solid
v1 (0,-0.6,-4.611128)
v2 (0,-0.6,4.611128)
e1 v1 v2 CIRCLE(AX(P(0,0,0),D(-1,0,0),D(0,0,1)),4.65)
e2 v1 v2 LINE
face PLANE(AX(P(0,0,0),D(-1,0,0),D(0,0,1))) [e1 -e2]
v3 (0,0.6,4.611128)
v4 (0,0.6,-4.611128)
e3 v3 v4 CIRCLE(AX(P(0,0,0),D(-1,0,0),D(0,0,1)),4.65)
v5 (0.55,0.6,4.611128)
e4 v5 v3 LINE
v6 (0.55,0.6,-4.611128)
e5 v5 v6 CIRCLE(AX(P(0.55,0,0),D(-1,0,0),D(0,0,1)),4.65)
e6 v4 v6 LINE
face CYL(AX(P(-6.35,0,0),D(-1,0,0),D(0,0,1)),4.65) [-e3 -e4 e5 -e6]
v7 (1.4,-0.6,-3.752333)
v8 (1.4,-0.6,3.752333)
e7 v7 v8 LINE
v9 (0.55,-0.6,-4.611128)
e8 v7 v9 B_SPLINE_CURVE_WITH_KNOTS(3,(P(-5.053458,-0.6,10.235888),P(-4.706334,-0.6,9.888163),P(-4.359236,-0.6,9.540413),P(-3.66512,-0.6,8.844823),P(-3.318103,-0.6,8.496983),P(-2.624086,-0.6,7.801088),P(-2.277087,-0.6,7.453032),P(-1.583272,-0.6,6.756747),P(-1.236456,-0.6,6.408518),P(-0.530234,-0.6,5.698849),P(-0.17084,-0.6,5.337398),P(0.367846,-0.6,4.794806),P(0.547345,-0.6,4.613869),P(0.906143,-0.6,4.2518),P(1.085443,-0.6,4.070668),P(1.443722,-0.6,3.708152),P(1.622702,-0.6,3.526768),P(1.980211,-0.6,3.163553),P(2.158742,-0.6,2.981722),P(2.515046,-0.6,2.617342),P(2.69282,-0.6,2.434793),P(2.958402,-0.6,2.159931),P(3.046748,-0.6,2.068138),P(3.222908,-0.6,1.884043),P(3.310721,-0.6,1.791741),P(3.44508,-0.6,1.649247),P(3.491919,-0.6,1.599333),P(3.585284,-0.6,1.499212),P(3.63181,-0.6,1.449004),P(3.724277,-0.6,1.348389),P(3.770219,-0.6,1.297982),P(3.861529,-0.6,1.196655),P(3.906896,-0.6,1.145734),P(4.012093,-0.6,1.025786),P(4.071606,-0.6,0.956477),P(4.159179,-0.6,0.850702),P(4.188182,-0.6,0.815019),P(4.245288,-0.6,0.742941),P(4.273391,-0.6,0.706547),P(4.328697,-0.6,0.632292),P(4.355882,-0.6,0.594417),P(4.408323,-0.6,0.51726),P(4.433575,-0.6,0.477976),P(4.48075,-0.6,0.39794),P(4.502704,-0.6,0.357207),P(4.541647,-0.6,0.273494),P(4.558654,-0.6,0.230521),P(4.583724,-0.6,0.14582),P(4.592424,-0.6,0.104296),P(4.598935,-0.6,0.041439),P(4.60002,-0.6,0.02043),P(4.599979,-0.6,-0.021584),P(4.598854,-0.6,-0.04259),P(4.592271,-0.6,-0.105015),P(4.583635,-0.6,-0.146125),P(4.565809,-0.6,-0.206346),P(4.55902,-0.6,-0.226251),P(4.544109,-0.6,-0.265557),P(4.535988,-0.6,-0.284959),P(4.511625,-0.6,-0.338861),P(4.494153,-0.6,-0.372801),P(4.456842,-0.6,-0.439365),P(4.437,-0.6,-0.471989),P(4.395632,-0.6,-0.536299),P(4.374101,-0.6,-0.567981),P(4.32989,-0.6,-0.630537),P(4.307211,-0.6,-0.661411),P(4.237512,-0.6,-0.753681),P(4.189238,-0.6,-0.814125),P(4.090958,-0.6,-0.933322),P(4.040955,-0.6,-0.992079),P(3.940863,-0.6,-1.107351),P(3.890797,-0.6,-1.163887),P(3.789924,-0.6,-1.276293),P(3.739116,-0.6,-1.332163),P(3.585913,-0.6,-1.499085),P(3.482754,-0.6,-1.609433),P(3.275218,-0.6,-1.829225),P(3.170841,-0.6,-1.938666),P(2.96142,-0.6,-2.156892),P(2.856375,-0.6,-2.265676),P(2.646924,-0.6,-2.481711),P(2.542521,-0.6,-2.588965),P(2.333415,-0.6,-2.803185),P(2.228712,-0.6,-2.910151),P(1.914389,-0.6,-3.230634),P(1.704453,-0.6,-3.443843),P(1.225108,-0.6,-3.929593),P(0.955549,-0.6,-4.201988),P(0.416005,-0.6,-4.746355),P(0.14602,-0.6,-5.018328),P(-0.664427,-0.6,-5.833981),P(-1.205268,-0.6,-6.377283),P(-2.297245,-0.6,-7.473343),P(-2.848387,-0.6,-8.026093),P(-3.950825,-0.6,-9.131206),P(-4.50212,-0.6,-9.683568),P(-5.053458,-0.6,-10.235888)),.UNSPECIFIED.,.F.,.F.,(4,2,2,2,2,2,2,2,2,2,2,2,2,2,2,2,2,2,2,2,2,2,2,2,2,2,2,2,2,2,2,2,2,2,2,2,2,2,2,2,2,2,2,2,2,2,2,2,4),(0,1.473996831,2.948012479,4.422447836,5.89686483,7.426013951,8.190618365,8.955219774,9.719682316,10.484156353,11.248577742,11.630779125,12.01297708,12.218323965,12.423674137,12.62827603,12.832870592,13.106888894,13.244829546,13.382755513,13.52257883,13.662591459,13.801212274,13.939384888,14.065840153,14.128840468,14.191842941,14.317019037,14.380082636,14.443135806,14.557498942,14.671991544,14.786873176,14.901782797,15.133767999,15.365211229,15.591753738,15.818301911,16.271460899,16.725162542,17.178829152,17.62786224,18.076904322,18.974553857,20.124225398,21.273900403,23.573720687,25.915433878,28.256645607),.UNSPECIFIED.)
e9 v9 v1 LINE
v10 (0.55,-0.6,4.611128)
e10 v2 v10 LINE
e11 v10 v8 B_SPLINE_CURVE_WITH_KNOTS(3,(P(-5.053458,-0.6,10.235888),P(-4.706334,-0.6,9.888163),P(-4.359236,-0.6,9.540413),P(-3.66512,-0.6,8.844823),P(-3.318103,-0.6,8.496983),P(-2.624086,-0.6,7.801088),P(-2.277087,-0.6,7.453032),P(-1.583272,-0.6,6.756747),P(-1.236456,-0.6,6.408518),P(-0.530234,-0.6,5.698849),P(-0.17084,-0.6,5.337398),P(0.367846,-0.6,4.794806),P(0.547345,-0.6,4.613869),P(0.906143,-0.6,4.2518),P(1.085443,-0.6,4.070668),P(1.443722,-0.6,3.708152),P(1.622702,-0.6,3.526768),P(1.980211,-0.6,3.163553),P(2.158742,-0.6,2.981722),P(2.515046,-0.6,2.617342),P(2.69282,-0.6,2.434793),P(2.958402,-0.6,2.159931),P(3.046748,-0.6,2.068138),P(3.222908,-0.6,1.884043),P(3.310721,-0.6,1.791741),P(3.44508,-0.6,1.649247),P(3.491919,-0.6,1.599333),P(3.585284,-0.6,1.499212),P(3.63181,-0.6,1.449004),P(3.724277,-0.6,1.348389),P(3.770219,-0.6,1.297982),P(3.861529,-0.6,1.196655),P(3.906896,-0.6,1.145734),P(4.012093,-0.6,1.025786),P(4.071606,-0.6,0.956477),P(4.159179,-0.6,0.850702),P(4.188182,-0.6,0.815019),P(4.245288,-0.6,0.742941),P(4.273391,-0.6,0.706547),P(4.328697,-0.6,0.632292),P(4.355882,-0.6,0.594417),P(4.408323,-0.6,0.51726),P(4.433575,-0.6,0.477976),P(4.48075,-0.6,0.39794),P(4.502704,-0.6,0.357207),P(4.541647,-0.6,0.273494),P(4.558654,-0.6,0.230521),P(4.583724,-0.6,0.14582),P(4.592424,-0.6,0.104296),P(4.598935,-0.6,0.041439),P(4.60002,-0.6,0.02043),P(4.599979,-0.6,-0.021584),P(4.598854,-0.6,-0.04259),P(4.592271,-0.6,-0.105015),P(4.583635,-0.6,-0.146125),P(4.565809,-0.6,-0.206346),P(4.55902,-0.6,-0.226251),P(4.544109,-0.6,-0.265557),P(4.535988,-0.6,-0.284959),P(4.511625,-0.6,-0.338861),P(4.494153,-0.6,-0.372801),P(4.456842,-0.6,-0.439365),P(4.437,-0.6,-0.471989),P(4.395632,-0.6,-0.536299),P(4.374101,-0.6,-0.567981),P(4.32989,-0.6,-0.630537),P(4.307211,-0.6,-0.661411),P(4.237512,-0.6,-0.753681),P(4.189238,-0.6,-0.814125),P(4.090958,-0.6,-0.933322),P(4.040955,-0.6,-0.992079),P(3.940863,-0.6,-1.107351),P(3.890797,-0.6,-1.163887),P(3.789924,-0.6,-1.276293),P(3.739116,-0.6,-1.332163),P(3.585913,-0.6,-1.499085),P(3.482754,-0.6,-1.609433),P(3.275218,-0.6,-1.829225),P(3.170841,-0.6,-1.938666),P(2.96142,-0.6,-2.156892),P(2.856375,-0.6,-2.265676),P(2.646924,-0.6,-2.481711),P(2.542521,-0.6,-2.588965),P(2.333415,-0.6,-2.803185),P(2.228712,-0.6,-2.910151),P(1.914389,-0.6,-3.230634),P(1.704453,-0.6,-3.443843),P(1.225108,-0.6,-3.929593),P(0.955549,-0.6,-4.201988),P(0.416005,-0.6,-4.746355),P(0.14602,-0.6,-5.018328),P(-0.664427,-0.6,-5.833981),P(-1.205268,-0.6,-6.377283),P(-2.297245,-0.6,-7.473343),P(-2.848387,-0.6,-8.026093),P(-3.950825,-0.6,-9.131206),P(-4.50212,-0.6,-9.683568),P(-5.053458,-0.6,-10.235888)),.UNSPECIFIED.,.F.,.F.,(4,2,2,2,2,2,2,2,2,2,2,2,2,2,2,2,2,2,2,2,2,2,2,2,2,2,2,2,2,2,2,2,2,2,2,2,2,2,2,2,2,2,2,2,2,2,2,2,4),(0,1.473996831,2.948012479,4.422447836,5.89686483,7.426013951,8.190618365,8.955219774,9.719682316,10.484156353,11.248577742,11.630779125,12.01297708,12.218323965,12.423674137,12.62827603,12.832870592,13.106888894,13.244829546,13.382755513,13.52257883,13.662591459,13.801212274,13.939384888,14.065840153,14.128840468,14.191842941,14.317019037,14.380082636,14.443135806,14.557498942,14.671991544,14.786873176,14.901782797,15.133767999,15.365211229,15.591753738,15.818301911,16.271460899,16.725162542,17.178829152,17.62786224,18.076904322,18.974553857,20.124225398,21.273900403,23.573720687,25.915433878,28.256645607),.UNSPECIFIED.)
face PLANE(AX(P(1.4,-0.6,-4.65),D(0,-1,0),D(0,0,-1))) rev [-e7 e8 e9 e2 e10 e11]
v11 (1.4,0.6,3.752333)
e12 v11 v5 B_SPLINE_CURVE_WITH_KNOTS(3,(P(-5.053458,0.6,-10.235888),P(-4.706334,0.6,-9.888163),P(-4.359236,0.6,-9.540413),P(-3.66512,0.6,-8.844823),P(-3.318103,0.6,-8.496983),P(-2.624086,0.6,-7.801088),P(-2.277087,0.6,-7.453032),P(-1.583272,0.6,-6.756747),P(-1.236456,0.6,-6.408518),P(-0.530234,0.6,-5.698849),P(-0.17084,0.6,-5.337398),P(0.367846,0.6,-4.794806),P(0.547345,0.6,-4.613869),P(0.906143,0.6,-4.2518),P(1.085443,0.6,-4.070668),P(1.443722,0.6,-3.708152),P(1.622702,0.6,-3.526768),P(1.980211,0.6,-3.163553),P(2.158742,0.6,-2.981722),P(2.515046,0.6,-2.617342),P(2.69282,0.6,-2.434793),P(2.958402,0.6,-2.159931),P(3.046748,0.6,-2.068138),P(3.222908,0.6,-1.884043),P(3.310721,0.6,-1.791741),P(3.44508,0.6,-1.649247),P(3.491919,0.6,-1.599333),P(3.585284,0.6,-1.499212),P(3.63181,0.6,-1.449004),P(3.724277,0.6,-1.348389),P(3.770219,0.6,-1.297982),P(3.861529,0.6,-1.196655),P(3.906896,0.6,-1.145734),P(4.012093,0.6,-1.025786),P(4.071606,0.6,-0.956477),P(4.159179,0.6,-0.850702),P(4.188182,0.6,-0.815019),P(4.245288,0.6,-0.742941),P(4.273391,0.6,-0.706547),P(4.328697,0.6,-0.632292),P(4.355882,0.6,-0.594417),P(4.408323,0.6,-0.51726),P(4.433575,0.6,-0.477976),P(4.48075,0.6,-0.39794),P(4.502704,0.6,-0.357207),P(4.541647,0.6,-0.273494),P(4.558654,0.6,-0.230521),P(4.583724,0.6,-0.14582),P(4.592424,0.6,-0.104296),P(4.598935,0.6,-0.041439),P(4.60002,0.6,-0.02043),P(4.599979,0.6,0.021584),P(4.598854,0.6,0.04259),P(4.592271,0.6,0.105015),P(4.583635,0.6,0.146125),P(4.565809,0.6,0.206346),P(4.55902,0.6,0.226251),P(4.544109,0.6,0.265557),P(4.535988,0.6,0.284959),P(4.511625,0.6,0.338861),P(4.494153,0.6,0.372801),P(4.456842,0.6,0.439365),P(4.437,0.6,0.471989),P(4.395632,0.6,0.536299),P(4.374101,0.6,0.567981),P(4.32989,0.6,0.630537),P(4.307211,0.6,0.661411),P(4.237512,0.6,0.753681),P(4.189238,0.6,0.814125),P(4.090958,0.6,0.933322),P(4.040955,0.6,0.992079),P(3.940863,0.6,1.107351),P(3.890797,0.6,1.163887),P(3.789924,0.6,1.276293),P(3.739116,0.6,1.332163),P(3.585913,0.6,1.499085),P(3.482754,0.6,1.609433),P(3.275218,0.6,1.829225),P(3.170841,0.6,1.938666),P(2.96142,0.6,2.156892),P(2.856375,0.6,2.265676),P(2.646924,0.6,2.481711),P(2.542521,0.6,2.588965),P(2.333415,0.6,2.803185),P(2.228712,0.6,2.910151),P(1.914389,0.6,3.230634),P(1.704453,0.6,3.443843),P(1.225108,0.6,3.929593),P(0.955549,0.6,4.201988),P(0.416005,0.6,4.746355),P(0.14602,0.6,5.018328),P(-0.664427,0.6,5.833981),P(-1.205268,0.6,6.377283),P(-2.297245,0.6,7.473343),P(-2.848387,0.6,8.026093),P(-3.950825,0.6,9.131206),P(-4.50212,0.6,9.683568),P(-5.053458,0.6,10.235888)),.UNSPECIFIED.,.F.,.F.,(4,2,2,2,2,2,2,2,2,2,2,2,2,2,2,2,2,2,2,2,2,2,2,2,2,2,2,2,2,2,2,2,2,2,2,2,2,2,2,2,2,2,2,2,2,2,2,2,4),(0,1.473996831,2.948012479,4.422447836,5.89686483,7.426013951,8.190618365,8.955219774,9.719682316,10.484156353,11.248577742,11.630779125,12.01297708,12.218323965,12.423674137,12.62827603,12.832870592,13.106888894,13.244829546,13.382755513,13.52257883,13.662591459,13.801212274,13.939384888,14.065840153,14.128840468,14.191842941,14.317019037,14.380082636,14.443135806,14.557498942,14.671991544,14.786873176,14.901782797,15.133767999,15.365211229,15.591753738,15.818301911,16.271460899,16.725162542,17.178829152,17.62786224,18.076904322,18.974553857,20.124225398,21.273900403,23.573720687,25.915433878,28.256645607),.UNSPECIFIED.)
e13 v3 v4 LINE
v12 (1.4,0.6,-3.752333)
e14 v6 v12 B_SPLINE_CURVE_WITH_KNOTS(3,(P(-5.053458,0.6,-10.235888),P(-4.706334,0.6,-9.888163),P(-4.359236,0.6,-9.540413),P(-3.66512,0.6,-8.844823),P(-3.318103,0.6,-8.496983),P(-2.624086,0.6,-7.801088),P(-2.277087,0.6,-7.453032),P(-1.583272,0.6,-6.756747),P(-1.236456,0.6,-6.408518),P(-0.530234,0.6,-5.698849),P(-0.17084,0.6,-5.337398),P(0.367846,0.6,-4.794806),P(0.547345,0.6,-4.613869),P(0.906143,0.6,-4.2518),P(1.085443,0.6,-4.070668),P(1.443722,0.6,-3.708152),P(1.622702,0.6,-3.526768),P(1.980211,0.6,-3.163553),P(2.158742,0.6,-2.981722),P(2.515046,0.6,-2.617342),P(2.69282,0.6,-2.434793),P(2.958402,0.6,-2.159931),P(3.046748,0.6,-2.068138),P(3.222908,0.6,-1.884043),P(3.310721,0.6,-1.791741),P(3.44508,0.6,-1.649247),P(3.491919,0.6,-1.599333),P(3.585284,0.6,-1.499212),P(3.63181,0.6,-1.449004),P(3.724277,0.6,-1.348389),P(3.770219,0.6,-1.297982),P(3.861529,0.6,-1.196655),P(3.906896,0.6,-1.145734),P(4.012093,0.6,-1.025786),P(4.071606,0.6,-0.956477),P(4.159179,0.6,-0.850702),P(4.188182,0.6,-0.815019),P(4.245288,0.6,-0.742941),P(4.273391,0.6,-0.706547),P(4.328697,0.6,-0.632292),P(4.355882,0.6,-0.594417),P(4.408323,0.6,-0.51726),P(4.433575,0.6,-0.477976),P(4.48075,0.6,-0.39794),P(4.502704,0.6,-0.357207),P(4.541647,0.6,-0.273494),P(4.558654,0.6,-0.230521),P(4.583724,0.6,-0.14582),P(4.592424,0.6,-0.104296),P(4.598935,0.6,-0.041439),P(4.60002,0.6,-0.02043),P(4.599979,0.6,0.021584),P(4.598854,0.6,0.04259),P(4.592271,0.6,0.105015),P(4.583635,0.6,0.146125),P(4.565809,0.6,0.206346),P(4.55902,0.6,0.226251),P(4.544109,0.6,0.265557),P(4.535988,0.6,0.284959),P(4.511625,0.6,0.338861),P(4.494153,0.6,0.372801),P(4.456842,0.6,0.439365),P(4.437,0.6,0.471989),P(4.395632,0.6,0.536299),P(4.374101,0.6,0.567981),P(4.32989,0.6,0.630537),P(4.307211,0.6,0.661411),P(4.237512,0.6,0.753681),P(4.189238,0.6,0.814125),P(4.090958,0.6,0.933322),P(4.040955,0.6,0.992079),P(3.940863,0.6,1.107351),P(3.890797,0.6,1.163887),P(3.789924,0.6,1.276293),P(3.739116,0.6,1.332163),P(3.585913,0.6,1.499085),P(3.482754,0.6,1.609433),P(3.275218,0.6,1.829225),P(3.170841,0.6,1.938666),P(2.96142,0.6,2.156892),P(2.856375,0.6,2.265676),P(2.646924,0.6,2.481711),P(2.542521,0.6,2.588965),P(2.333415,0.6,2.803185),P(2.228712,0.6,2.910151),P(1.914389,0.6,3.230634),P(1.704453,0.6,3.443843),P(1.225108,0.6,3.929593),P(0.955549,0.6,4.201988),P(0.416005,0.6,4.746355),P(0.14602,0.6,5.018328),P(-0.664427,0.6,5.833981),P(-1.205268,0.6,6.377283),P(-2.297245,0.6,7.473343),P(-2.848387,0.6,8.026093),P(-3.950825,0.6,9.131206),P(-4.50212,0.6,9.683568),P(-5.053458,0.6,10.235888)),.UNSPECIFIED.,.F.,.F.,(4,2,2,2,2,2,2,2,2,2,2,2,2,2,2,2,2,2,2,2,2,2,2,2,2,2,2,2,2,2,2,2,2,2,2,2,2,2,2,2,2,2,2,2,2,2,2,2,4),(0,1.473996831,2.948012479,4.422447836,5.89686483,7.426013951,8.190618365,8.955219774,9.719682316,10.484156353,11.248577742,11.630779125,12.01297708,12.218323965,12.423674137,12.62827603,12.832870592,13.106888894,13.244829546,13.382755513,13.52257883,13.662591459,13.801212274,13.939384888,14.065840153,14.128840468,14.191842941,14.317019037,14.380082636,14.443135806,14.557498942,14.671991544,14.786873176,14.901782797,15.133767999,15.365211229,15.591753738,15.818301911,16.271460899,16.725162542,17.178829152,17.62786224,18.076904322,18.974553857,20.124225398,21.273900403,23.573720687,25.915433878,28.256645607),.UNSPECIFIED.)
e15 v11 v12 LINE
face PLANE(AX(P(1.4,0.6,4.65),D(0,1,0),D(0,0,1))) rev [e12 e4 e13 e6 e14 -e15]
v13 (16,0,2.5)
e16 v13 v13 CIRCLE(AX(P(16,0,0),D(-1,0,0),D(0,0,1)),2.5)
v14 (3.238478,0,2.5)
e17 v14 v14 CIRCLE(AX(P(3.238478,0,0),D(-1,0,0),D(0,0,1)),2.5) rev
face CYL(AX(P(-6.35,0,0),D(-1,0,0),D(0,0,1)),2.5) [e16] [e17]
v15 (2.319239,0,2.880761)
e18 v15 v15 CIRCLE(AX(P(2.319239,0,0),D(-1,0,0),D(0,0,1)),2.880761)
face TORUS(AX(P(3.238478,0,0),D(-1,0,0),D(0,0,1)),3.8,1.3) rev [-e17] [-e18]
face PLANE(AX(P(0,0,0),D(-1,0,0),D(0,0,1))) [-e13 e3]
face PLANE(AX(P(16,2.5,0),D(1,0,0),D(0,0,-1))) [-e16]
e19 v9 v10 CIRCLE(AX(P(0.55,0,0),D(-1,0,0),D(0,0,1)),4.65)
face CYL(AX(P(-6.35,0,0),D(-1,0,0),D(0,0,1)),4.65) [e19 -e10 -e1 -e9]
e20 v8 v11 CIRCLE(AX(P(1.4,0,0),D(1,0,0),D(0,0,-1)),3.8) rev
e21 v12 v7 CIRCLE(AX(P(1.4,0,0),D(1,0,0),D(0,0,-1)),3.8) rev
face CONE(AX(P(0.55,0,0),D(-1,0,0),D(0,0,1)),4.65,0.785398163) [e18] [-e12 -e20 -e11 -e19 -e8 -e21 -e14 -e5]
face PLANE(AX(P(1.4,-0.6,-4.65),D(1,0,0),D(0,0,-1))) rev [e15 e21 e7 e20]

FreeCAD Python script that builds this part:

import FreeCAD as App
import Part
import Sketcher
from FreeCAD import Vector
Q = App.Units.Quantity


def edges_at(feature, points):
    """Names of the edges that pass closest to the given points."""
    edges = feature.Shape.Edges
    near = lambda p: min(range(len(edges)), key=lambda i: edges[i].distToShape(Part.Vertex(*p))[0])
    return sorted({f"Edge{near(p) + 1}" for p in points})


def add_polygon(sketch, points):
    """Adds a closed chain of lines whose ends are joined by coincident constraints."""
    first, n = sketch.GeometryCount, len(points)
    for a, b in zip(points, points[1:] + points[:1]):
        sketch.addGeometry(Part.LineSegment(App.Vector(*a, 0), App.Vector(*b, 0)), False)
    for i in range(n):
        sketch.addConstraint(Sketcher.Constraint("Coincident", first + i, 2, first + (i + 1) % n, 1))

doc = App.newDocument("Part")
body = doc.addObject("PartDesign::Body", "Body")

# Sketch on XY plane
sketch1 = body.newObject("Sketcher::SketchObject", "Sketch")
sketch1.AttachmentSupport = (doc.getObject("XY_Plane"), [""])
sketch1.MapMode = "FlatFace"
add_polygon(sketch1, [(0, 4.7), (0, 0), (16, 0), (16, 2.5), (2.7, 2.5), (0.6, 4.7)])  # lines 0-5
sketch1.addConstraint([
    Sketcher.Constraint("Vertical", 0),
    Sketcher.Constraint("Horizontal", 1),
    Sketcher.Constraint("Vertical", 2),
    Sketcher.Constraint("Horizontal", 3),
    Sketcher.Constraint("Horizontal", 5),
    Sketcher.Constraint("Coincident", 0, 2, -1, 1),
    Sketcher.Constraint("DistanceX", 1, 1, 1, 2, Q("16 mm")),
    Sketcher.Constraint("Angle", 4, Q("135 deg")),
    Sketcher.Constraint("DistanceX", 3, 2, 3, 1, Q("13.3 mm")),
    Sketcher.Constraint("DistanceY", 2, 1, 2, 2, Q("2.5 mm")),
    Sketcher.Constraint("DistanceX", 5, 2, 5, 1, Q("0.55 mm")),
])
revolution = body.newObject("PartDesign::Revolution", "Revolution")
revolution.Profile = sketch1
revolution.ReferenceAxis = (sketch1, ["H_Axis"])
revolution.Angle = 360
doc.recompute()

fillet = body.newObject("PartDesign::Fillet", "Fillet")
fillet.Base = (revolution, edges_at(revolution, [(2.7, -2.5, 0)]))
fillet.Radius = 1.3

# Sketch on YZ plane
sketch2 = body.newObject("Sketcher::SketchObject", "Sketch001")
sketch2.AttachmentSupport = (doc.getObject("YZ_Plane"), [""])
sketch2.MapMode = "FlatFace"
add_polygon(sketch2, [(0.6, -4.7), (-0.6, -4.7), (-0.6, 4.7), (0.6, 4.7)])  # lines 0-3
sketch2.addConstraint([
    Sketcher.Constraint("Horizontal", 0),
    Sketcher.Constraint("Vertical", 1),
    Sketcher.Constraint("Horizontal", 2),
    Sketcher.Constraint("Vertical", 3),
    Sketcher.Constraint("Symmetric", 0, 2, 2, 2, -1, 1),
    Sketcher.Constraint("DistanceX", 0, 2, 0, 1, Q("1.2 mm")),
    Sketcher.Constraint("DistanceY", 1, 1, 1, 2, Q("9.3 mm")),
])
pocket1 = body.newObject("PartDesign::Pocket", "Pocket")
pocket1.Profile = sketch2
pocket1.Length = 1.4
pocket1.Reversed = True

doc.recompute()
